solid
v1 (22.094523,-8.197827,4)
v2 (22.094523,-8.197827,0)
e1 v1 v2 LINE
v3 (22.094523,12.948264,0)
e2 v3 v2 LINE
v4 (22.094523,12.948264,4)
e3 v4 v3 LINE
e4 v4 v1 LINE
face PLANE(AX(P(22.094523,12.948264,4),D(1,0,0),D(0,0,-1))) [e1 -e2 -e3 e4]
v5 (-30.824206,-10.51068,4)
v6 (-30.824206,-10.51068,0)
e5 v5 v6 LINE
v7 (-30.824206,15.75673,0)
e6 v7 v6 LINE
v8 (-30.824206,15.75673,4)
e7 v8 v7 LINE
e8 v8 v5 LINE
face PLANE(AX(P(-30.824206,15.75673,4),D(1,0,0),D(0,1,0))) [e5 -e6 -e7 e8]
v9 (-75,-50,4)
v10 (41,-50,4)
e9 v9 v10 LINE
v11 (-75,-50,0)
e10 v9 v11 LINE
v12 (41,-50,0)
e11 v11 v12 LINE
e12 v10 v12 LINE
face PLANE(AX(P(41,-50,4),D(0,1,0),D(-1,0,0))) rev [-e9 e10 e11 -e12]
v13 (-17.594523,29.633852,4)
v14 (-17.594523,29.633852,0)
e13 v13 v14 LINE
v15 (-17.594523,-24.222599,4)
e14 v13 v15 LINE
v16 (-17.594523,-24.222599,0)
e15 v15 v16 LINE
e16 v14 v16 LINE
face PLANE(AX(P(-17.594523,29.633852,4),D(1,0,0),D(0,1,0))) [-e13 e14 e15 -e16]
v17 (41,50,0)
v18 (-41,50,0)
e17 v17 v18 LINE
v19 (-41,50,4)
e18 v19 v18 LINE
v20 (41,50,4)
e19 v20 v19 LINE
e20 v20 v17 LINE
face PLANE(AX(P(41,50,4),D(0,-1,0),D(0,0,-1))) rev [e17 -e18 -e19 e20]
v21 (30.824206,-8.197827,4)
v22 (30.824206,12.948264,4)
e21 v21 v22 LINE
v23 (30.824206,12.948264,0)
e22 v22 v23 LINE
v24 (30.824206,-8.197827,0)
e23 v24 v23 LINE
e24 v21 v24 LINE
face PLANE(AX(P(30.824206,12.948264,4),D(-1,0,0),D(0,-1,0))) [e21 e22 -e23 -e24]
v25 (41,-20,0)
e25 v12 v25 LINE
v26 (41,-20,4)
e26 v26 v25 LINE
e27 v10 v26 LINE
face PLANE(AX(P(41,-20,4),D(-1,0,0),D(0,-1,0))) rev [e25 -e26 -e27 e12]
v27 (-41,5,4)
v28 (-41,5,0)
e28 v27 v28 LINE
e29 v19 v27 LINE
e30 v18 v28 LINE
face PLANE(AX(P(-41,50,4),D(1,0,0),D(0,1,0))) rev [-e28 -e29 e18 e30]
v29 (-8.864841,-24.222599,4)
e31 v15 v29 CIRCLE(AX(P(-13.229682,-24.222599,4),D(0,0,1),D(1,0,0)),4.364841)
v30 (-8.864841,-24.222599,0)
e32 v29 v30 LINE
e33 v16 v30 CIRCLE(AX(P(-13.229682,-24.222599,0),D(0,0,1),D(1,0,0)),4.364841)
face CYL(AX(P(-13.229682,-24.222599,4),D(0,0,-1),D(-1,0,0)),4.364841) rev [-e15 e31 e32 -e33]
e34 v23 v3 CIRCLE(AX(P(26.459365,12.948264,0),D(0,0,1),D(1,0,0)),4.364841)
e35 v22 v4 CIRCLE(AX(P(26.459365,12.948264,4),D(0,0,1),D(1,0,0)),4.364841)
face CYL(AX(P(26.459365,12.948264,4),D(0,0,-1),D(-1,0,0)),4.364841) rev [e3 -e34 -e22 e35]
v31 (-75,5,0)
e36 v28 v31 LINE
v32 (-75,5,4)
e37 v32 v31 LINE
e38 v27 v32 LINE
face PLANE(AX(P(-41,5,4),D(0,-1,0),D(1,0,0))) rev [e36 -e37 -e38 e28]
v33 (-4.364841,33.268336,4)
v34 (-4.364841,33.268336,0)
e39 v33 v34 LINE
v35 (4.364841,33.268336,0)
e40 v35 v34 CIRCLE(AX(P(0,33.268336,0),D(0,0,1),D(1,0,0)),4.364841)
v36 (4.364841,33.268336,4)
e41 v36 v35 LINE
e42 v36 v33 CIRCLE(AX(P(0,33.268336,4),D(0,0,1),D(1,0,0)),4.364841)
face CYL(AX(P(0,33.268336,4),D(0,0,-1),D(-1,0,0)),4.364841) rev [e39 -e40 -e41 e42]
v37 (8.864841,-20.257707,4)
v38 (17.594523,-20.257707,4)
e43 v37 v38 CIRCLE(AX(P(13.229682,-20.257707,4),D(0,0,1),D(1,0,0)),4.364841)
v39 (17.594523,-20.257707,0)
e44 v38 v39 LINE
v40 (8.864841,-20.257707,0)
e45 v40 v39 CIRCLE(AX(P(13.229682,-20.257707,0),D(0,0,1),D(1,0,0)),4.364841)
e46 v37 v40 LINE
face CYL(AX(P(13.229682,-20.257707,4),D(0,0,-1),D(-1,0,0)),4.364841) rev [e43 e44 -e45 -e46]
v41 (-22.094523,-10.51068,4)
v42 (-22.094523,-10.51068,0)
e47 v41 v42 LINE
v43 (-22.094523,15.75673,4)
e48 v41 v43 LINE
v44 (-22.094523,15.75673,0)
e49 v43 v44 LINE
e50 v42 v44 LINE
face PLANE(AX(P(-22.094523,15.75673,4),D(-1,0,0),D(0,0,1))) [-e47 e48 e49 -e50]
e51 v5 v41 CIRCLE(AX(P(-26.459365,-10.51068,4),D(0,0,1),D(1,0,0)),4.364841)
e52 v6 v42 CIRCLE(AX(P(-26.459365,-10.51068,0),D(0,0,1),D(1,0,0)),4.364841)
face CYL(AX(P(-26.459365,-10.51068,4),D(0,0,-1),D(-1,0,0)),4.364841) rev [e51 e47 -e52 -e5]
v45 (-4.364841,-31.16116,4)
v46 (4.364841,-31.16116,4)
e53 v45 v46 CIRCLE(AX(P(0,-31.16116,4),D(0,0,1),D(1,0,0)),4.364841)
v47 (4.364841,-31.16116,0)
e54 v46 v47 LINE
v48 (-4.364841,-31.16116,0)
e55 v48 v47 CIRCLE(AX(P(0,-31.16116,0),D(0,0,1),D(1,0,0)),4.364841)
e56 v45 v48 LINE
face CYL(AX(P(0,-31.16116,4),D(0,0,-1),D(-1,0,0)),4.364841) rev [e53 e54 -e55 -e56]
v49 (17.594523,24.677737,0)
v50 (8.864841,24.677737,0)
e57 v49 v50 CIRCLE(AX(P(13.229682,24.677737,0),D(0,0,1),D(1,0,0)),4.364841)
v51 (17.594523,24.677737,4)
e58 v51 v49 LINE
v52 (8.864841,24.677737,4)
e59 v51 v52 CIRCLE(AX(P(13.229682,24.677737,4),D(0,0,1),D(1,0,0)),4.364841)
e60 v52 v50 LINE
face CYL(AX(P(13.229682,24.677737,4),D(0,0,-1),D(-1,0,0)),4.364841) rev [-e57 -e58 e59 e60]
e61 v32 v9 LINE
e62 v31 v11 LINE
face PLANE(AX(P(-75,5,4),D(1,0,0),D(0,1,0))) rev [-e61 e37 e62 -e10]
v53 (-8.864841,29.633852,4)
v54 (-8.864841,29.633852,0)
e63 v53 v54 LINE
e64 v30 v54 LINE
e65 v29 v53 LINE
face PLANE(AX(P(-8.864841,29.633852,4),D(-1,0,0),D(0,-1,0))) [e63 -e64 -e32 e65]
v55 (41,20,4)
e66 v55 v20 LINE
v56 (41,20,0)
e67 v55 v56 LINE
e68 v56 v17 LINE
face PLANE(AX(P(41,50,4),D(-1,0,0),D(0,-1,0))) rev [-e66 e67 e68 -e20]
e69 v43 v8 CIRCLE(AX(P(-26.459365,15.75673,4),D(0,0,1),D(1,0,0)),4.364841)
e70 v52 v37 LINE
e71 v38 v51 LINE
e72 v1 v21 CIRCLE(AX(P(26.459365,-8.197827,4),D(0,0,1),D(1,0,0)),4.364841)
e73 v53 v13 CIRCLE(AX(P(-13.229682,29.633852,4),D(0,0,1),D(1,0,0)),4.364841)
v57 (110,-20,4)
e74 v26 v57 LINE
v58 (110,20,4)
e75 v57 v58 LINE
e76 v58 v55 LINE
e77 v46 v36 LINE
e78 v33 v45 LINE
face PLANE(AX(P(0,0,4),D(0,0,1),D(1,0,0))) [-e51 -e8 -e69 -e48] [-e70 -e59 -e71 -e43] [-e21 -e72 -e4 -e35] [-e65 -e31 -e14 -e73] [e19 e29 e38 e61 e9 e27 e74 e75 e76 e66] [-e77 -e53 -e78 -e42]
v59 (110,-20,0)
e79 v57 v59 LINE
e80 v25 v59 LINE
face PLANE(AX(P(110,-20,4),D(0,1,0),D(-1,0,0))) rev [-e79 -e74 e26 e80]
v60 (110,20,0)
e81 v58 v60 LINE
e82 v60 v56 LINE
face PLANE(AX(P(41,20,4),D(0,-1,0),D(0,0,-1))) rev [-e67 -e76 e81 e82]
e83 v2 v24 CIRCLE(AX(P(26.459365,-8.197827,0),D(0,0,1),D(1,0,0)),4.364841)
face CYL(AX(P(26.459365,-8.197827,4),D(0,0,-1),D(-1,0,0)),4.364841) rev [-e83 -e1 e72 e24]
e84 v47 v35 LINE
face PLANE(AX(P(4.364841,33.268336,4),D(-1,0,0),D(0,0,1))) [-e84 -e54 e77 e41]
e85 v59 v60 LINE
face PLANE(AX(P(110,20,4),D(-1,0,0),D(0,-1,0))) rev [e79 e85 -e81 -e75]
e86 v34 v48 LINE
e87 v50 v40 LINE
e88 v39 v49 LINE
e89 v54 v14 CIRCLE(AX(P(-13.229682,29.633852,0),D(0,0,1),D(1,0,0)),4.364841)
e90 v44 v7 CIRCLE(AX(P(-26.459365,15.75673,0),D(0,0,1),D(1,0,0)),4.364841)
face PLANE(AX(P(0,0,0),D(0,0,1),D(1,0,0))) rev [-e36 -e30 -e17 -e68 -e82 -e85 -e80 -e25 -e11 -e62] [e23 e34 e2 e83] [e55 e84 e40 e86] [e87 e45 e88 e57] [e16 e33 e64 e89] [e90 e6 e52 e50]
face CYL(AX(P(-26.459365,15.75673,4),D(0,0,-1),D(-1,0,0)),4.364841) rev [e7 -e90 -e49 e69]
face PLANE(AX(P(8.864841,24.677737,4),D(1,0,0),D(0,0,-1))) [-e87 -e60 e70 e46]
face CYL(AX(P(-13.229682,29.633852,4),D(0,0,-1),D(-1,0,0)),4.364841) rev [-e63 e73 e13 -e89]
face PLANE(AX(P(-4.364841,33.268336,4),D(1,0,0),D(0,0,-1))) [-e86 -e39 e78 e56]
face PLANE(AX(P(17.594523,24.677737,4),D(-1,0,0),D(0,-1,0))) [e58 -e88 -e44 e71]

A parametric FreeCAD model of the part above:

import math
import FreeCAD as App
import Part
import Sketcher

V = App.Vector


def add_polygon(sketch, points):
    """Adds a closed chain of lines whose ends are joined by coincident constraints."""
    first, n = sketch.GeometryCount, len(points)
    for a, b in zip(points, points[1:] + points[:1]):
        sketch.addGeometry(Part.LineSegment(App.Vector(*a, 0), App.Vector(*b, 0)), False)
    for i in range(n):
        sketch.addConstraint(Sketcher.Constraint("Coincident", first + i, 2, first + (i + 1) % n, 1))

doc = App.newDocument("Part")
body = doc.addObject("PartDesign::Body", "Body")

sketch1 = body.newObject("Sketcher::SketchObject", "Sketch")
sketch1.AttachmentSupport = (doc.getObject("XY_Plane"), [""])
sketch1.MapMode = "FlatFace"
add_polygon(sketch1, [(-41, 50), (-41, 5), (-75, 5), (-75, -50), (41, -50), (41, -20), (110, -20), (110, 20), (41, 20), (41, 50)])
sketch1.addGeometry(Part.ArcOfCircle(Part.Circle(V(-26.459365, 15.75673, 0), V(0, 0, 1), 4.364841), math.radians(0), math.radians(180)), False)
sketch1.addGeometry(Part.LineSegment(V(-22.094523, 15.75673, 0), V(-22.094523, -10.51068, 0)), False)
sketch1.addGeometry(Part.ArcOfCircle(Part.Circle(V(-26.459365, -10.51068, 0), V(0, 0, 1), 4.364841), math.radians(180), math.radians(360)), False)
sketch1.addGeometry(Part.LineSegment(V(-30.824206, -10.51068, 0), V(-30.824206, 15.75673, 0)), False)
sketch1.addGeometry(Part.ArcOfCircle(Part.Circle(V(-13.229682, 29.633852, 0), V(0, 0, 1), 4.364841), math.radians(0), math.radians(180)), False)
sketch1.addGeometry(Part.LineSegment(V(-8.864841, 29.633852, 0), V(-8.864841, -24.222599, 0)), False)
sketch1.addGeometry(Part.ArcOfCircle(Part.Circle(V(-13.229682, -24.222599, 0), V(0, 0, 1), 4.364841), math.radians(180), math.radians(360)), False)
sketch1.addGeometry(Part.LineSegment(V(-17.594523, -24.222599, 0), V(-17.594523, 29.633852, 0)), False)
sketch1.addGeometry(Part.ArcOfCircle(Part.Circle(V(0, 33.268336, 0), V(0, 0, 1), 4.364841), math.radians(0), math.radians(180)), False)
sketch1.addGeometry(Part.LineSegment(V(4.364841, 33.268336, 0), V(4.364841, -31.16116, 0)), False)
sketch1.addGeometry(Part.ArcOfCircle(Part.Circle(V(0, -31.16116, 0), V(0, 0, 1), 4.364841), math.radians(180), math.radians(360)), False)
sketch1.addGeometry(Part.LineSegment(V(-4.364841, -31.16116, 0), V(-4.364841, 33.268336, 0)), False)
sketch1.addGeometry(Part.ArcOfCircle(Part.Circle(V(13.229682, 24.677737, 0), V(0, 0, 1), 4.364841), math.radians(0), math.radians(180)), False)
sketch1.addGeometry(Part.LineSegment(V(17.594523, 24.677737, 0), V(17.594523, -20.257707, 0)), False)
sketch1.addGeometry(Part.ArcOfCircle(Part.Circle(V(13.229682, -20.257707, 0), V(0, 0, 1), 4.364841), math.radians(180), math.radians(360)), False)
sketch1.addGeometry(Part.LineSegment(V(8.864841, -20.257707, 0), V(8.864841, 24.677737, 0)), False)
sketch1.addGeometry(Part.ArcOfCircle(Part.Circle(V(26.459365, 12.948264, 0), V(0, 0, 1), 4.364841), math.radians(0), math.radians(180)), False)
sketch1.addGeometry(Part.LineSegment(V(30.824206, 12.948264, 0), V(30.824206, -8.197827, 0)), False)
sketch1.addGeometry(Part.ArcOfCircle(Part.Circle(V(26.459365, -8.197827, 0), V(0, 0, 1), 4.364841), math.radians(180), math.radians(360)), False)
sketch1.addGeometry(Part.LineSegment(V(22.094523, -8.197827, 0), V(22.094523, 12.948264, 0)), False)
sketch1.addConstraint(Sketcher.Constraint("Tangent", 10, 1, 11, 1))
sketch1.addConstraint(Sketcher.Constraint("Tangent", 11, 2, 12, 2))
sketch1.addConstraint(Sketcher.Constraint("Tangent", 12, 1, 13, 1))
sketch1.addConstraint(Sketcher.Constraint("Tangent", 13, 2, 10, 2))
sketch1.addConstraint(Sketcher.Constraint("Tangent", 14, 1, 15, 1))
sketch1.addConstraint(Sketcher.Constraint("Tangent", 15, 2, 16, 2))
sketch1.addConstraint(Sketcher.Constraint("Tangent", 16, 1, 17, 1))
sketch1.addConstraint(Sketcher.Constraint("Tangent", 17, 2, 14, 2))
sketch1.addConstraint(Sketcher.Constraint("Tangent", 18, 1, 19, 1))
sketch1.addConstraint(Sketcher.Constraint("Tangent", 19, 2, 20, 2))
sketch1.addConstraint(Sketcher.Constraint("Tangent", 20, 1, 21, 1))
sketch1.addConstraint(Sketcher.Constraint("Tangent", 21, 2, 18, 2))
sketch1.addConstraint(Sketcher.Constraint("Tangent", 22, 1, 23, 1))
sketch1.addConstraint(Sketcher.Constraint("Tangent", 23, 2, 24, 2))
sketch1.addConstraint(Sketcher.Constraint("Tangent", 24, 1, 25, 1))
sketch1.addConstraint(Sketcher.Constraint("Tangent", 25, 2, 22, 2))
sketch1.addConstraint(Sketcher.Constraint("Tangent", 26, 1, 27, 1))
sketch1.addConstraint(Sketcher.Constraint("Tangent", 27, 2, 28, 2))
sketch1.addConstraint(Sketcher.Constraint("Tangent", 28, 1, 29, 1))
sketch1.addConstraint(Sketcher.Constraint("Tangent", 29, 2, 26, 2))
sketch1.addConstraint(Sketcher.Constraint("Vertical", 0))
sketch1.addConstraint(Sketcher.Constraint("Horizontal", 1))
sketch1.addConstraint(Sketcher.Constraint("Vertical", 2))
sketch1.addConstraint(Sketcher.Constraint("Horizontal", 3))
sketch1.addConstraint(Sketcher.Constraint("Vertical", 4))
sketch1.addConstraint(Sketcher.Constraint("Horizontal", 5))
sketch1.addConstraint(Sketcher.Constraint("Vertical", 6))
sketch1.addConstraint(Sketcher.Constraint("Horizontal", 7))
sketch1.addConstraint(Sketcher.Constraint("Vertical", 8))
sketch1.addConstraint(Sketcher.Constraint("Horizontal", 9))
sketch1.addConstraint(Sketcher.Constraint("Vertical", 11))
sketch1.addConstraint(Sketcher.Constraint("Vertical", 13))
sketch1.addConstraint(Sketcher.Constraint("Vertical", 15))
sketch1.addConstraint(Sketcher.Constraint("Vertical", 17))
sketch1.addConstraint(Sketcher.Constraint("Vertical", 19))
sketch1.addConstraint(Sketcher.Constraint("Vertical", 21))
sketch1.addConstraint(Sketcher.Constraint("Vertical", 23))
sketch1.addConstraint(Sketcher.Constraint("Vertical", 25))
sketch1.addConstraint(Sketcher.Constraint("Vertical", 27))
sketch1.addConstraint(Sketcher.Constraint("Vertical", 29))
sketch1.addConstraint(Sketcher.Constraint("Equal", 12, 14))
sketch1.addConstraint(Sketcher.Constraint("Equal", 16, 18))
sketch1.addConstraint(Sketcher.Constraint("Equal", 20, 22))
sketch1.addConstraint(Sketcher.Constraint("Equal", 24, 26))
sketch1.addConstraint(Sketcher.Constraint("Symmetric", 3, 2, 9, 2, -1, 1))
sketch1.addConstraint(Sketcher.Constraint("Symmetric", 4, 2, 7, 2, -1))
sketch1.addConstraint(Sketcher.Constraint("PointOnObject", 18, 3, -2))
sketch1.addConstraint(Sketcher.Constraint("DistanceX", 1, 2, 1, 1, 34.0))
sketch1.addConstraint(Sketcher.Constraint("DistanceX", 3, 1, 3, 2, 116.0))
sketch1.addConstraint(Sketcher.Constraint("DistanceX", 5, 1, 5, 2, 69.0))
sketch1.addConstraint(Sketcher.Constraint("DistanceY", 0, 2, 0, 1, 45.0))
sketch1.addConstraint(Sketcher.Constraint("DistanceY", 2, 2, 2, 1, 55.0))
sketch1.addConstraint(Sketcher.Constraint("DistanceY", 4, 1, 4, 2, 30.0))
sketch1.addConstraint(Sketcher.Constraint("DistanceX", 11, 2, 16, 1, 4.5))
sketch1.addConstraint(Sketcher.Constraint("DistanceX", 15, 2, 20, 1, 4.5))
sketch1.addConstraint(Sketcher.Constraint("DistanceX", 19, 2, 24, 1, 4.5))
sketch1.addConstraint(Sketcher.Constraint("DistanceX", 23, 2, 28, 1, 4.5))
sketch1.addConstraint(Sketcher.Constraint("Radius", 10, 4.364841))
sketch1.addConstraint(Sketcher.Constraint("DistanceY", 11, 2, 11, 1, 26.26741))
sketch1.addConstraint(Sketcher.Constraint("DistanceY", 15, 2, 15, 1, 53.856451))
sketch1.addConstraint(Sketcher.Constraint("DistanceY", 27, 2, 27, 1, 21.146091))
sketch1.addConstraint(Sketcher.Constraint("DistanceY", 16, 3, -1, 1, 24.222599))
sketch1.addConstraint(Sketcher.Constraint("DistanceY", 22, 3, 18, 3, 8.5906))
sketch1.addConstraint(Sketcher.Constraint("DistanceY", 19, 2, 19, 1, 64.429496))
sketch1.addConstraint(Sketcher.Constraint("DistanceY", 23, 2, 23, 1, 44.935444))
sketch1.addConstraint(Sketcher.Constraint("DistanceY", -1, 1, 10, 3, 15.75673))
sketch1.addConstraint(Sketcher.Constraint("DistanceY", 20, 3, -1, 1, 31.16116))
sketch1.addConstraint(Sketcher.Constraint("DistanceY", 26, 3, 18, 3, 20.320072))
pad1 = body.newObject("PartDesign::Pad", "Pad")
pad1.Profile = sketch1
pad1.Length = 4

doc.recompute()
